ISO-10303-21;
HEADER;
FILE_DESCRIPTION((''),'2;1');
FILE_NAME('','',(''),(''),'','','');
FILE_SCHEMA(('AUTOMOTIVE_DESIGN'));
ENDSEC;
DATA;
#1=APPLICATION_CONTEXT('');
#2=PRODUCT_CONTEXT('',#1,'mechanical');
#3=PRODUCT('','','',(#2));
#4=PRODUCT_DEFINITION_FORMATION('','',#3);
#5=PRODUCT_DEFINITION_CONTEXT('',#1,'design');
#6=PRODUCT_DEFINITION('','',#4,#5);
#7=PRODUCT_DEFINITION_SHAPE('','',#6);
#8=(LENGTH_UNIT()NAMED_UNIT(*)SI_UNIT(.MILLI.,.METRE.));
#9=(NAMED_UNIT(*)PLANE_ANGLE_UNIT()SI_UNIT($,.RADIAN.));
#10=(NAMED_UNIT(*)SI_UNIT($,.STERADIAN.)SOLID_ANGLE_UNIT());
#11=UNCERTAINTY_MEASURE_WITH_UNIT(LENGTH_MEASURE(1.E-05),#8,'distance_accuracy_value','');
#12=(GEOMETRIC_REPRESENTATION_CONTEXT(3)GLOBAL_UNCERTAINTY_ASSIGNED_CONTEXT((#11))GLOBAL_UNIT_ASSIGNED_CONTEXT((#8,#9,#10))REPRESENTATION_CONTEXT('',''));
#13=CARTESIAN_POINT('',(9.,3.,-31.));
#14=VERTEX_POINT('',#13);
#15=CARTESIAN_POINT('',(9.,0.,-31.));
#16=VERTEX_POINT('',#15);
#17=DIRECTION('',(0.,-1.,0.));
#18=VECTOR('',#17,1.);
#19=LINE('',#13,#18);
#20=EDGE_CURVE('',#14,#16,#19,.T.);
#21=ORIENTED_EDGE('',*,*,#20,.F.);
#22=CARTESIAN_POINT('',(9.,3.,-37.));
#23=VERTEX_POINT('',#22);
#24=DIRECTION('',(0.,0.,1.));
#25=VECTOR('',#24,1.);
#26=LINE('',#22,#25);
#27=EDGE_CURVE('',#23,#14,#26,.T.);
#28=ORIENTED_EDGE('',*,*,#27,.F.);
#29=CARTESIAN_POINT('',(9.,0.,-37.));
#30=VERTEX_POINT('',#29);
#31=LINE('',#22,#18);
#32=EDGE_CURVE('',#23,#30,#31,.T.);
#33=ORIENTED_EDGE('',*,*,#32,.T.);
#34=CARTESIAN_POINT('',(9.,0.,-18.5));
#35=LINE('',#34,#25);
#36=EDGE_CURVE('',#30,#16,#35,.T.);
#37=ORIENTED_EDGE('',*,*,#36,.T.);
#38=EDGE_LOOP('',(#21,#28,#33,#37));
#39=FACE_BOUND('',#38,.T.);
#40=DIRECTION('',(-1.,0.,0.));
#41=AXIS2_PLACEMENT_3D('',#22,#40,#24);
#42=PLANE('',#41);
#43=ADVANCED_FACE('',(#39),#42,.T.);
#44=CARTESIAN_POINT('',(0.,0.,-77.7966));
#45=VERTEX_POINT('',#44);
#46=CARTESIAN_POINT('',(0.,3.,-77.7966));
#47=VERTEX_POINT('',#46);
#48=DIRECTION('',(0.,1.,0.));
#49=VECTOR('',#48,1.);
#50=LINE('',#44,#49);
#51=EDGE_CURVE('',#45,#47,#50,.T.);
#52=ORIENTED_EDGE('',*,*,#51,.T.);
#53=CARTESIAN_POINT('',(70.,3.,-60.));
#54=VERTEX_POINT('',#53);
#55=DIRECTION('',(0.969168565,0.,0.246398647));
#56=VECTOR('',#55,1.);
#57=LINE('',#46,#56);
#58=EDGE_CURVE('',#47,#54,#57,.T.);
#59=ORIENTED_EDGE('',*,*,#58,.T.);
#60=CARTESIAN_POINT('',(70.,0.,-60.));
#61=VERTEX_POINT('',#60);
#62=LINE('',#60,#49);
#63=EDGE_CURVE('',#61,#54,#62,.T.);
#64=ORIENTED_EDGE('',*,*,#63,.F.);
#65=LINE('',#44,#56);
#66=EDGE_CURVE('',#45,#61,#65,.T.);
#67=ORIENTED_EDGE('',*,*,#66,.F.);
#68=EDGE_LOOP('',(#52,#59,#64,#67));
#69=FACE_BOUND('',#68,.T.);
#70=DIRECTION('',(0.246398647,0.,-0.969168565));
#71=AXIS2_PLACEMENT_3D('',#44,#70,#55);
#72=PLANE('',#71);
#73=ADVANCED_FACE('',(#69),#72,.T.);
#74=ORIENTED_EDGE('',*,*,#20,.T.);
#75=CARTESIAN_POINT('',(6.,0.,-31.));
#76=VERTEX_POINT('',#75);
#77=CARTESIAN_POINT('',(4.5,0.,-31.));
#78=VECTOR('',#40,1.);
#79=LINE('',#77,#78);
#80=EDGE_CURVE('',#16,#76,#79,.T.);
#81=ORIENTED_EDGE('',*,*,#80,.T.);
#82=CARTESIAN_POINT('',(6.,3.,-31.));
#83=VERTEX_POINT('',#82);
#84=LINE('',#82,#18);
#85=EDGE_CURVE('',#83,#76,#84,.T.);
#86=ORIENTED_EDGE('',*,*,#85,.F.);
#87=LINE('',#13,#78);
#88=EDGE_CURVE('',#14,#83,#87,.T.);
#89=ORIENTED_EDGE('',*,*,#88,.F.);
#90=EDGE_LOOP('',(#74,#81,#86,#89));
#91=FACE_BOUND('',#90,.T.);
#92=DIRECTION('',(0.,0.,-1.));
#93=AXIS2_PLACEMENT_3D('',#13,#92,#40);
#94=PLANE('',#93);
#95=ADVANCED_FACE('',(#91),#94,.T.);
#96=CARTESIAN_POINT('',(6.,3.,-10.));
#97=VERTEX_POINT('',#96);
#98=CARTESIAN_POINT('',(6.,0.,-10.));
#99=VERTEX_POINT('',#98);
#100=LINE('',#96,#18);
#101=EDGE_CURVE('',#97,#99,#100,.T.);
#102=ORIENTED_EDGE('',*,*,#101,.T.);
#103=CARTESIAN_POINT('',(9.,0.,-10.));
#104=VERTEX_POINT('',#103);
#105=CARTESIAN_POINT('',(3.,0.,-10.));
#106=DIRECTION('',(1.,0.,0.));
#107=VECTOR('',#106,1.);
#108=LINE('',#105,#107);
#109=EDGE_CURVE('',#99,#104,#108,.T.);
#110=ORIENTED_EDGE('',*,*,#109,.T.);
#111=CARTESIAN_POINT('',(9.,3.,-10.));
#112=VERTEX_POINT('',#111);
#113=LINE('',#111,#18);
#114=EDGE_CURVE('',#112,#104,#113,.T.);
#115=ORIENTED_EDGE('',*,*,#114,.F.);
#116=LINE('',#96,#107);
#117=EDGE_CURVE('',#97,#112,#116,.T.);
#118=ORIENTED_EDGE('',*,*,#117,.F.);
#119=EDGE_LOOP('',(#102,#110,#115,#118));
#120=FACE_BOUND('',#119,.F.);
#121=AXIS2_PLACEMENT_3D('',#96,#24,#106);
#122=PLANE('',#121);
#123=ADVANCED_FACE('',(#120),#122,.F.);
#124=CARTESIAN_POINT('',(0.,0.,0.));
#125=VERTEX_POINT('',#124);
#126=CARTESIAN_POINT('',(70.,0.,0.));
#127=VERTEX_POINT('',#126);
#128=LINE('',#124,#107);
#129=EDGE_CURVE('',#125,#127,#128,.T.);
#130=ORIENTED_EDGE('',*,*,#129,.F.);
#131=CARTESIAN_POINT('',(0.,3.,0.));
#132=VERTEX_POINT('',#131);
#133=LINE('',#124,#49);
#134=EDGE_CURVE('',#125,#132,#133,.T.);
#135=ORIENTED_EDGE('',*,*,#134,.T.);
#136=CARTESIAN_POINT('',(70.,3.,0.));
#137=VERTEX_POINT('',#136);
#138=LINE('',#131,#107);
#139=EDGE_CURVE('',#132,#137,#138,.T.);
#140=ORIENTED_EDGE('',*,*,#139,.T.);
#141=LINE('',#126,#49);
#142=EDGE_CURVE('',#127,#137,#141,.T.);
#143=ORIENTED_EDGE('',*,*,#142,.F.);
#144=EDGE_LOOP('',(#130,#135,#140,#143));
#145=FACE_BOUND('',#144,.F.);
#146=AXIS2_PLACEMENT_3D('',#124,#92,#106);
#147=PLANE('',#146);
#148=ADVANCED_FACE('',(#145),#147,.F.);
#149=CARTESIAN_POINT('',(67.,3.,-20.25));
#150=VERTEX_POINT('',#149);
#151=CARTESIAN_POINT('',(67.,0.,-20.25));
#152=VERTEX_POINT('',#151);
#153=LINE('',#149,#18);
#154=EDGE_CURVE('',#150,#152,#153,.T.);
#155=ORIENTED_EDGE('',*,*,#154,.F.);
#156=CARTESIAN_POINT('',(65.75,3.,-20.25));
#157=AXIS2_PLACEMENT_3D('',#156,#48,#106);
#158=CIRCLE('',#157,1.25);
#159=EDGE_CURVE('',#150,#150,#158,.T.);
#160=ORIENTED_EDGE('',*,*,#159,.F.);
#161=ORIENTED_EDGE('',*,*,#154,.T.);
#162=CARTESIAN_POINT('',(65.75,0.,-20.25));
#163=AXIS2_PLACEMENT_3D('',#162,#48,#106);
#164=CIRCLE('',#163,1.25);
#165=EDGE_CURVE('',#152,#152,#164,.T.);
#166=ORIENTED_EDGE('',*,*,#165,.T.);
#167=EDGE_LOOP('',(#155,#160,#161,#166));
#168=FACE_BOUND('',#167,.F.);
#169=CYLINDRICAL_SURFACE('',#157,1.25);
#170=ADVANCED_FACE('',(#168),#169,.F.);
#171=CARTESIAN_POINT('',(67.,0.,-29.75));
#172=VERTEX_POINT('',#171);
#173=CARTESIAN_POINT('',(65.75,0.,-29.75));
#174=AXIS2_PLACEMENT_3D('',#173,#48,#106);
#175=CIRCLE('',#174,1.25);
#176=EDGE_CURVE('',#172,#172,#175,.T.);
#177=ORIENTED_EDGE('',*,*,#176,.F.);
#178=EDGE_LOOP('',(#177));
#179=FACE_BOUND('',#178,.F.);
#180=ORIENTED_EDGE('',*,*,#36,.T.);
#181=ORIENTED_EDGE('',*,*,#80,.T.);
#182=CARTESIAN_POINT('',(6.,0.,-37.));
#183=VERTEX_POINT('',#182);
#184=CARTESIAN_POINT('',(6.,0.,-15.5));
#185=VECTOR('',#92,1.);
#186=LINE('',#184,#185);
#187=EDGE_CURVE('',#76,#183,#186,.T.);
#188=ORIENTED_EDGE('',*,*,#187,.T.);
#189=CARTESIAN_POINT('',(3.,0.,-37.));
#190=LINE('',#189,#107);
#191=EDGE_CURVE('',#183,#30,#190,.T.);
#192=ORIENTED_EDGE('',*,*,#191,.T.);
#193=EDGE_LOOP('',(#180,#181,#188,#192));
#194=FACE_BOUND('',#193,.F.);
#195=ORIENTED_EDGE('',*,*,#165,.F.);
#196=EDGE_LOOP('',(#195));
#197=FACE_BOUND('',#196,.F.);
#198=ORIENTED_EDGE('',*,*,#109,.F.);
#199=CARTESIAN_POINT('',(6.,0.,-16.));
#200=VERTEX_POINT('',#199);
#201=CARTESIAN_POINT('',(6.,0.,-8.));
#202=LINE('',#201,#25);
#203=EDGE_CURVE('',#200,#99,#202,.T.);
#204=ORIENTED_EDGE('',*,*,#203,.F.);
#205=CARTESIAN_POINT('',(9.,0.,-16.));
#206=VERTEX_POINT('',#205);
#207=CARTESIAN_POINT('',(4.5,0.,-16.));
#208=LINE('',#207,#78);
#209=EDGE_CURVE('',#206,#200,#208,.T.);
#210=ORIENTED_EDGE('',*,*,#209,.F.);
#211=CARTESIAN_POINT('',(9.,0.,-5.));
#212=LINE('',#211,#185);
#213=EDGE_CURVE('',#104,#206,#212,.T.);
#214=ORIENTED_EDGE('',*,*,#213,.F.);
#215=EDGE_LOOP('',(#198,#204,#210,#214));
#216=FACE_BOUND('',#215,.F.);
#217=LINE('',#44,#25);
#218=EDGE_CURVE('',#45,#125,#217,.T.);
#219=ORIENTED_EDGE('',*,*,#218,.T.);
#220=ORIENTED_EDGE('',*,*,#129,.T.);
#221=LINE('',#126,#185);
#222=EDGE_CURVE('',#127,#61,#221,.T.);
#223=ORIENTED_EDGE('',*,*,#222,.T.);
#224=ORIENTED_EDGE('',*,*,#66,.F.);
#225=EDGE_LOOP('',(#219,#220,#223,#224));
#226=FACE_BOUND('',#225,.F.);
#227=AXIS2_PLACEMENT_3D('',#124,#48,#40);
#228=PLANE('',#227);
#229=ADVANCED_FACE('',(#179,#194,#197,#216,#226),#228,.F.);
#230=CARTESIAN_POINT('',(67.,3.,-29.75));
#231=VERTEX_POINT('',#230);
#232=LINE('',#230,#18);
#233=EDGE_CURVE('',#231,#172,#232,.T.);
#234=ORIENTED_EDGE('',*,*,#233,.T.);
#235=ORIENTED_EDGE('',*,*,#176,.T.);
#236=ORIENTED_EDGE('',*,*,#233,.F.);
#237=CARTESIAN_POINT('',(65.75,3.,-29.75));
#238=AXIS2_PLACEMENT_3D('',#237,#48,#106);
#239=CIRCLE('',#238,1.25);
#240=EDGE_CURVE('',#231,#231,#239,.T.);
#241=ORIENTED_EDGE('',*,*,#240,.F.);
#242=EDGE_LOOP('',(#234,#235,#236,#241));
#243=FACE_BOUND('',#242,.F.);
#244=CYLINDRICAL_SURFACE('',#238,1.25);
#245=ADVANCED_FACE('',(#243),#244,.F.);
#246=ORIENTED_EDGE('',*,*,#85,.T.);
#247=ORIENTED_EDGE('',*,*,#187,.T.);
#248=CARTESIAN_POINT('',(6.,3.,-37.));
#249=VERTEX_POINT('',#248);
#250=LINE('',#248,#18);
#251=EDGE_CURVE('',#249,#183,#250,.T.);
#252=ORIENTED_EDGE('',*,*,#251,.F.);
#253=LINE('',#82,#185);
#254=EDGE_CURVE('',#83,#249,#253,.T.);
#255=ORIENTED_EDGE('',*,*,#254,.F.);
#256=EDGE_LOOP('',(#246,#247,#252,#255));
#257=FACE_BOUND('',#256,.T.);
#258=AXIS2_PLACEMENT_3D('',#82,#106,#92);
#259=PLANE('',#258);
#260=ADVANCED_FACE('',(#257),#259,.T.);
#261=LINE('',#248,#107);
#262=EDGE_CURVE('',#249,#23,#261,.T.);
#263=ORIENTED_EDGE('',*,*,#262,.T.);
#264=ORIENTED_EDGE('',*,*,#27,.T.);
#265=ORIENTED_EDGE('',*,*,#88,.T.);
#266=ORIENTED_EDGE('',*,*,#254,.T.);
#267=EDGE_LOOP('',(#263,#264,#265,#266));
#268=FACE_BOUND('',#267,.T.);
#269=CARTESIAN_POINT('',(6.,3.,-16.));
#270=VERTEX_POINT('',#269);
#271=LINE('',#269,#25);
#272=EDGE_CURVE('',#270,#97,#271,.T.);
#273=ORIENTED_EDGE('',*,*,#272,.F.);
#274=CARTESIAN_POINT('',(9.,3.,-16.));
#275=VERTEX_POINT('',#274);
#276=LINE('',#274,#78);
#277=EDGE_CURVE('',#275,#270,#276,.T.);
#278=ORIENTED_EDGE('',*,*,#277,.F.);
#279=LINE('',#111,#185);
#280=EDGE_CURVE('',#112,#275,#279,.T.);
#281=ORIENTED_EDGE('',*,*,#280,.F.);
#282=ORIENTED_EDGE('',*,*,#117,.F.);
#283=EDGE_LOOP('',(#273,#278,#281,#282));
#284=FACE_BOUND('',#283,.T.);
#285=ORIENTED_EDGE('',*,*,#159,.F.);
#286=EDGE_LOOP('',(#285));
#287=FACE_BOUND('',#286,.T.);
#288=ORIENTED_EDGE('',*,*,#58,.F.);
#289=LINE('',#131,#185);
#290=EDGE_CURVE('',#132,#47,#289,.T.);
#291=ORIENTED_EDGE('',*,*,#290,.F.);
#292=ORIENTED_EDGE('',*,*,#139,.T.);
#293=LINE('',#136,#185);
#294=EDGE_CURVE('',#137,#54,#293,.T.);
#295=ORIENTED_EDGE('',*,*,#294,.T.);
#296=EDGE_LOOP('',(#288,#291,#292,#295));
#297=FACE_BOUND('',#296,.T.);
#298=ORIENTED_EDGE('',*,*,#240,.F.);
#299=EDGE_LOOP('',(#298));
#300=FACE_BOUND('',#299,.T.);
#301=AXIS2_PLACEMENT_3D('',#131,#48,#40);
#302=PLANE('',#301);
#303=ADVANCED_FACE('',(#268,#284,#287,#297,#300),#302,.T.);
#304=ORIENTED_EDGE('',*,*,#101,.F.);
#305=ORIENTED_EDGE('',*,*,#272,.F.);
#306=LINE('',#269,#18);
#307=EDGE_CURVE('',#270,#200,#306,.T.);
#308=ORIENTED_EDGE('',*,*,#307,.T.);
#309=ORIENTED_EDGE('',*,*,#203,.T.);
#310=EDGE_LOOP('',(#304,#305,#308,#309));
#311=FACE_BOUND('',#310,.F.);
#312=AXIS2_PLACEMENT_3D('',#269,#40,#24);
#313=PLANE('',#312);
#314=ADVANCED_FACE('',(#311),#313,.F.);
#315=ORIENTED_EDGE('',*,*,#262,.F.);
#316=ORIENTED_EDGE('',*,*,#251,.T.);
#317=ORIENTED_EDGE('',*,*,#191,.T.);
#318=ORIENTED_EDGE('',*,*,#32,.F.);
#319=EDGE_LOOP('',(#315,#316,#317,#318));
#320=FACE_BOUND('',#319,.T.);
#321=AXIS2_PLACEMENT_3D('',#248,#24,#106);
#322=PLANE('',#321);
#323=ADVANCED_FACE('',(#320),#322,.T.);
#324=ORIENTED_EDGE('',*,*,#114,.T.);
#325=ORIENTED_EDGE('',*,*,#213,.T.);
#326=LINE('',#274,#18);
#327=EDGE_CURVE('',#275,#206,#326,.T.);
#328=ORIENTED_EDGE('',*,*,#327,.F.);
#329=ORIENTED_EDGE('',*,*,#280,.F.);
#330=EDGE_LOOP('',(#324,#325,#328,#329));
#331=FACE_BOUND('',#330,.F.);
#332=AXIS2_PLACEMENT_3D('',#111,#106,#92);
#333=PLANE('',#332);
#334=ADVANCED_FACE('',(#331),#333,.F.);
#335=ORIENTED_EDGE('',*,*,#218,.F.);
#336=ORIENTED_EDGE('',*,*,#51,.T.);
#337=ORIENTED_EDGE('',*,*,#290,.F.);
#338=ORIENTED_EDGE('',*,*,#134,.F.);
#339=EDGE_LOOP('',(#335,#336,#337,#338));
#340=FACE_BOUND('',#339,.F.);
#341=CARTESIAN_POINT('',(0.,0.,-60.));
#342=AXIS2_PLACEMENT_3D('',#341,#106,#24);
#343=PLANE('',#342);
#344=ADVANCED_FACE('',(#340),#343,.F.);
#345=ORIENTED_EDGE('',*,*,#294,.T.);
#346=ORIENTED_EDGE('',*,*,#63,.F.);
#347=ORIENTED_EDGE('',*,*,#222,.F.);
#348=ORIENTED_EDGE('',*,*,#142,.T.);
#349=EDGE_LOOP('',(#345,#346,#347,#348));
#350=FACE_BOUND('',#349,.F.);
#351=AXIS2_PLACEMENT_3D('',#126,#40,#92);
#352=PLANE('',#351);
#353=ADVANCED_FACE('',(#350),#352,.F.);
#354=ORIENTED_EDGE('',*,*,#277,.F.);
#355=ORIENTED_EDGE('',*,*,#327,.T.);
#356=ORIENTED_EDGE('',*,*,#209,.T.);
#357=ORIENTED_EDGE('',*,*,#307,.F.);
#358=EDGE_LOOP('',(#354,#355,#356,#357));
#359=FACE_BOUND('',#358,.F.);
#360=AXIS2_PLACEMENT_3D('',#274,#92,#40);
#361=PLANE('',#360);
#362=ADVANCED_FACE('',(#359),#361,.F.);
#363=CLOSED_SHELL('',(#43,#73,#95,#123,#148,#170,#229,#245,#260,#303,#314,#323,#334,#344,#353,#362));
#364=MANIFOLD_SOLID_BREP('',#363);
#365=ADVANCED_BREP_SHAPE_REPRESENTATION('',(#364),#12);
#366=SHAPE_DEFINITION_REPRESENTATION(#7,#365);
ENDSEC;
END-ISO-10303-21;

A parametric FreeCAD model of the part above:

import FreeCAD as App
import Part
import Sketcher
Q = App.Units.Quantity

doc = App.newDocument("Part")
body = doc.addObject("PartDesign::Body", "Body")

# Sketch on XZ plane
sketch1 = body.newObject("Sketcher::SketchObject", "Sketch")
sketch1.AttachmentSupport = (doc.getObject("XZ_Plane"), [""])
sketch1.MapMode = "FlatFace"
sketch1.addGeometry([
    Part.LineSegment(App.Vector(0, 0, 0), App.Vector(70, 0, 0)),
    Part.LineSegment(App.Vector(70, 0, 0), App.Vector(70, -60, 0)),
    Part.LineSegment(App.Vector(70, -60, 0), App.Vector(0, -77.7966, 0)),
    Part.LineSegment(App.Vector(0, -77.7966, 0), App.Vector(0, 0, 0)),
], False)
sketch1.addConstraint([
    Sketcher.Constraint("Coincident", 0, 2, 1, 1),
    Sketcher.Constraint("Coincident", 1, 2, 2, 1),
    Sketcher.Constraint("Coincident", 2, 2, 3, 1),
    Sketcher.Constraint("Coincident", 3, 2, 0, 1),
    Sketcher.Constraint("Horizontal", 0),
    Sketcher.Constraint("Vertical", 1),
    Sketcher.Constraint("Vertical", 3),
    Sketcher.Constraint("Coincident", 3, 2, -1, 1),
    Sketcher.Constraint("DistanceX", 0, 1, 0, 2, Q("70 mm")),
    Sketcher.Constraint("DistanceY", 1, 2, 1, 1, Q("60 mm")),
    Sketcher.Constraint("DistanceY", 3, 1, 3, 2, Q("77.7966 mm")),
])
pad1 = body.newObject("PartDesign::Pad", "Pad")
pad1.Profile = sketch1
pad1.Length = 3
pad1.Reversed = True

# Sketch on XZ plane
sketch2 = body.newObject("Sketcher::SketchObject", "Sketch001")
sketch2.AttachmentSupport = (doc.getObject("XZ_Plane"), [""])
sketch2.MapMode = "FlatFace"
sketch2.AttachmentOffset = App.Placement(App.Vector(0, 0, -3), App.Rotation())
sketch2.addGeometry([
    Part.Circle(App.Vector(65.75, -20.25, 0), App.Vector(0, 0, 1), 1.25),  # 0
    Part.Circle(App.Vector(65.75, -29.75, 0), App.Vector(0, 0, 1), 1.25),  # 1
    Part.LineSegment(App.Vector(6, -16, 0), App.Vector(6, -10, 0)),  # 2
    Part.LineSegment(App.Vector(6, -10, 0), App.Vector(9, -10, 0)),  # 3
    Part.LineSegment(App.Vector(9, -10, 0), App.Vector(9, -16, 0)),  # 4
    Part.LineSegment(App.Vector(9, -16, 0), App.Vector(6, -16, 0)),  # 5
    Part.LineSegment(App.Vector(9, -37, 0), App.Vector(6, -37, 0)),  # 6
    Part.LineSegment(App.Vector(6, -37, 0), App.Vector(6, -31, 0)),  # 7
    Part.LineSegment(App.Vector(6, -31, 0), App.Vector(9, -31, 0)),  # 8
    Part.LineSegment(App.Vector(9, -31, 0), App.Vector(9, -37, 0)),  # 9
], False)
sketch2.addConstraint([
    Sketcher.Constraint("Coincident", 2, 2, 3, 1),
    Sketcher.Constraint("Coincident", 3, 2, 4, 1),
    Sketcher.Constraint("Coincident", 4, 2, 5, 1),
    Sketcher.Constraint("Coincident", 5, 2, 2, 1),
    Sketcher.Constraint("Coincident", 6, 2, 7, 1),
    Sketcher.Constraint("Coincident", 7, 2, 8, 1),
    Sketcher.Constraint("Coincident", 8, 2, 9, 1),
    Sketcher.Constraint("Coincident", 9, 2, 6, 1),
    Sketcher.Constraint("Vertical", 2),
    Sketcher.Constraint("Horizontal", 3),
    Sketcher.Constraint("Vertical", 4),
    Sketcher.Constraint("Horizontal", 5),
    Sketcher.Constraint("Horizontal", 6),
    Sketcher.Constraint("Vertical", 7),
    Sketcher.Constraint("Horizontal", 8),
    Sketcher.Constraint("Vertical", 9),
    Sketcher.Constraint("Equal", 0, 1),
    Sketcher.Constraint("Vertical", 0, 3, 1, 3),
    Sketcher.Constraint("Vertical", 5, 2, 6, 2),
    Sketcher.Constraint("Vertical", 4, 2, 8, 2),
    Sketcher.Constraint("Equal", 4, 7),
    Sketcher.Constraint("Diameter", 0, Q("2.5 mm")),
    Sketcher.Constraint("DistanceX", 3, 1, 3, 2, Q("3 mm")),
    Sketcher.Constraint("DistanceY", 2, 1, 2, 2, Q("6 mm")),
    Sketcher.Constraint("DistanceX", -1, 1, 2, 2, Q("6 mm")),
    Sketcher.Constraint("DistanceY", 2, 2, -1, 1, Q("10 mm")),
    Sketcher.Constraint("DistanceY", 7, 2, 5, 2, Q("15 mm")),
    Sketcher.Constraint("DistanceY", 1, 3, 0, 3, Q("9.5 mm")),
    Sketcher.Constraint("DistanceY", 0, 3, -1, 1, Q("20.25 mm")),
    Sketcher.Constraint("DistanceX", -1, 1, 0, 3, Q("65.75 mm")),
])
pocket1 = body.newObject("PartDesign::Pocket", "Pocket")
pocket1.Profile = sketch2
pocket1.Type = "ThroughAll"
pocket1.Midplane = True

doc.recompute()
